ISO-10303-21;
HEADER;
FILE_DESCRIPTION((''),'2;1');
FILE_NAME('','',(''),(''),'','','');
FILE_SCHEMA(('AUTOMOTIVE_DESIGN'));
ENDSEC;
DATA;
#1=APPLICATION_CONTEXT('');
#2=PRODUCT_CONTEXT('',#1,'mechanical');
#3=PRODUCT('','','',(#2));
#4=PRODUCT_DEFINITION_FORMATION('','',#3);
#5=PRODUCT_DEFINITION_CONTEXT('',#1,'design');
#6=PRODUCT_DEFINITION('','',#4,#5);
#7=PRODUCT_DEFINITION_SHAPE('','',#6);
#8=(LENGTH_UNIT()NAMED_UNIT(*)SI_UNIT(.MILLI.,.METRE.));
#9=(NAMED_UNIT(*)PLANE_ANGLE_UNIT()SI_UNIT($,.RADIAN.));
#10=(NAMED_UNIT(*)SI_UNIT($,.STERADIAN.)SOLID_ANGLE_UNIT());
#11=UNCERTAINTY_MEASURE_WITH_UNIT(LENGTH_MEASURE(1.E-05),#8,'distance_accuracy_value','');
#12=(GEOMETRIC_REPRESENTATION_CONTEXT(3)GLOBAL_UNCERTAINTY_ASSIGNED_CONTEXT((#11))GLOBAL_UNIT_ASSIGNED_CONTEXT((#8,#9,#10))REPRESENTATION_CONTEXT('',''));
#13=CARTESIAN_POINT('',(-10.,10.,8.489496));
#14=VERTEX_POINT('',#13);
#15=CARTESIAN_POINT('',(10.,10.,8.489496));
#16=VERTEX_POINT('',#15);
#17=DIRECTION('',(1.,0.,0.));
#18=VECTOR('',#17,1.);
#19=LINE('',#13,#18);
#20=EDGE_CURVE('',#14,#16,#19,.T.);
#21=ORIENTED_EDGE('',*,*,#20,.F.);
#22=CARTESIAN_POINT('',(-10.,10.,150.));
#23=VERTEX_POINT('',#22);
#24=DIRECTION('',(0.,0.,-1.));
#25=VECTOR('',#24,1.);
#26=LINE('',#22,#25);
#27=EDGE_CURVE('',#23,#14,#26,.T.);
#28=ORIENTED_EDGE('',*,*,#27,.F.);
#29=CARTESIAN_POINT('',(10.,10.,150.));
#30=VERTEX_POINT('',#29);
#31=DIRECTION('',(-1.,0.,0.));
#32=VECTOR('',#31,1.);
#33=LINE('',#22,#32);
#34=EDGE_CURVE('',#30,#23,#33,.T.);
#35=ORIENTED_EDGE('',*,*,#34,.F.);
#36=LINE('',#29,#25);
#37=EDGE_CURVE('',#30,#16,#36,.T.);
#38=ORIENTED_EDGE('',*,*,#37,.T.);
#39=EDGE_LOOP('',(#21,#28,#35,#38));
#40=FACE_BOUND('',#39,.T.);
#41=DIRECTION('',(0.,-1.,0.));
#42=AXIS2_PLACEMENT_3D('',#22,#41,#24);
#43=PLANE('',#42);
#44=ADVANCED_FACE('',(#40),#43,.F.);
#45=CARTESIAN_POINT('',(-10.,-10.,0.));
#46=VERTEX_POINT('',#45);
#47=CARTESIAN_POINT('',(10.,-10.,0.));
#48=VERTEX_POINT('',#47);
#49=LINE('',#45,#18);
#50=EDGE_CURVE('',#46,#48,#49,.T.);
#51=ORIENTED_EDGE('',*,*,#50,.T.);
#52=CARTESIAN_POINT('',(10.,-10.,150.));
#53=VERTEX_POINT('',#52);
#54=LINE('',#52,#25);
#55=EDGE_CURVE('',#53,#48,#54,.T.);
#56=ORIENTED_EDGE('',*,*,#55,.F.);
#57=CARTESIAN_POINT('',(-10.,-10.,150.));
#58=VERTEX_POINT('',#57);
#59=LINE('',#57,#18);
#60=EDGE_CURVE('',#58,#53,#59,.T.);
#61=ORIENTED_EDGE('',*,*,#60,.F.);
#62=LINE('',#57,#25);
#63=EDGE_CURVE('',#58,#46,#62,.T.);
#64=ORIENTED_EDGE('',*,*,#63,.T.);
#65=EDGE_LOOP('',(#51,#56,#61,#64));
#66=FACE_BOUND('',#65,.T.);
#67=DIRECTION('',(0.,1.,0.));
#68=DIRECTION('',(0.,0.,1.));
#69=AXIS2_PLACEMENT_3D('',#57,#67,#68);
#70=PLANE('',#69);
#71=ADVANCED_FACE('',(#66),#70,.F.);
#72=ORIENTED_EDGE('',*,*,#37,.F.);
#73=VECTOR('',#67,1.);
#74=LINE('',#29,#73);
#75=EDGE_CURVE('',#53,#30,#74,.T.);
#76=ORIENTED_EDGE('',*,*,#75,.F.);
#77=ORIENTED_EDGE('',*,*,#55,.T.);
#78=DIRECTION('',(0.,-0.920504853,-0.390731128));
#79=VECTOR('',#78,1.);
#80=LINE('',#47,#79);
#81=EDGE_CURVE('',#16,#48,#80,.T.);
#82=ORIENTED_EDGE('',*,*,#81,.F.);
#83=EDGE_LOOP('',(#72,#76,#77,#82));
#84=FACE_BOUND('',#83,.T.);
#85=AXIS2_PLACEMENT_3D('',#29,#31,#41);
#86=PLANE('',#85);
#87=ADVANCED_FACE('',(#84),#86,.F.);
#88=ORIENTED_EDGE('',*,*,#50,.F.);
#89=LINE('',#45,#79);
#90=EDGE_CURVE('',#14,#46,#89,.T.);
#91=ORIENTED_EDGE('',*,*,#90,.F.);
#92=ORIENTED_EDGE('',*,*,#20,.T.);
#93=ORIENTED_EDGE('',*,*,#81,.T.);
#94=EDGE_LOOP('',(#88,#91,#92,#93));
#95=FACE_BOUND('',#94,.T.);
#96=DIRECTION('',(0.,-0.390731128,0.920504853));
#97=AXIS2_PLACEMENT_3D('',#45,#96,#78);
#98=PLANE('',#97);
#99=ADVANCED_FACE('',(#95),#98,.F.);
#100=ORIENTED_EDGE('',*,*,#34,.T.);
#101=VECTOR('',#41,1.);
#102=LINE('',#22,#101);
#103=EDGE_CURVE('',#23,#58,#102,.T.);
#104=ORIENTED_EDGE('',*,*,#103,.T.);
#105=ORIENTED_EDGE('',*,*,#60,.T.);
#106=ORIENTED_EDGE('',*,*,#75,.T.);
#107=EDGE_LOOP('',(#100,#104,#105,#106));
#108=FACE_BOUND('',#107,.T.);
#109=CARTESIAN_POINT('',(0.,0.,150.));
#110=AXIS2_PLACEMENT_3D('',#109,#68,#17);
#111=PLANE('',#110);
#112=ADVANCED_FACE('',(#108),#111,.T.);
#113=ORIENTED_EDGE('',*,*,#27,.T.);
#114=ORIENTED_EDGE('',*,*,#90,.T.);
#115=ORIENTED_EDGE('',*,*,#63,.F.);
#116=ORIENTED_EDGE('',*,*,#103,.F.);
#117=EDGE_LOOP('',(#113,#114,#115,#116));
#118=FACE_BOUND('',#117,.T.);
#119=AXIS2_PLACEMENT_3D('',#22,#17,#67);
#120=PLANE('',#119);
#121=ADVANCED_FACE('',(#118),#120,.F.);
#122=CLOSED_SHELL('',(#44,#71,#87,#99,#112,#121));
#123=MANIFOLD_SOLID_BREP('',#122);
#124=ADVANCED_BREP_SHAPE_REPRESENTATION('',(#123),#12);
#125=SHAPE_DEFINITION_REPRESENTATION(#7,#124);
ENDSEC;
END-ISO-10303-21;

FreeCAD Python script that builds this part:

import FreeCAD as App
import Part
import Sketcher

V = App.Vector
Q = App.Units.Quantity

doc = App.newDocument("Part")
body = doc.addObject("PartDesign::Body", "Body")

sketch1 = doc.addObject("Sketcher::SketchObject", "Sketch")
body.addObject(sketch1)
sketch1.AttachmentSupport = (doc.XY_Plane, [""])
sketch1.MapMode = "FlatFace"
sketch1.addGeometry([
    Part.LineSegment(V(-10, 10, 0), V(-10, -10, 0)),
    Part.LineSegment(V(-10, -10, 0), V(10, -10, 0)),
    Part.LineSegment(V(10, -10, 0), V(10, 10, 0)),
    Part.LineSegment(V(10, 10, 0), V(-10, 10, 0)),
], False)
sketch1.addConstraint([
    Sketcher.Constraint("Coincident", 0, 2, 1, 1),
    Sketcher.Constraint("Coincident", 1, 2, 2, 1),
    Sketcher.Constraint("Coincident", 2, 2, 3, 1),
    Sketcher.Constraint("Coincident", 3, 2, 0, 1),
    Sketcher.Constraint("Vertical", 0),
    Sketcher.Constraint("Horizontal", 1),
    Sketcher.Constraint("Vertical", 2),
    Sketcher.Constraint("Horizontal", 3),
    Sketcher.Constraint("Symmetric", 0, 2, 2, 2, -1, 1),
    Sketcher.Constraint("Equal", 3, 0),
    Sketcher.Constraint("DistanceX", 1, 1, 1, 2, 20.0),
])
pad1 = doc.addObject("PartDesign::Pad", "Pad")
body.addObject(pad1)
pad1.Profile = sketch1
pad1.Length = 150

sketch2 = doc.addObject("Sketcher::SketchObject", "Sketch001")
body.addObject(sketch2)
sketch2.AttachmentSupport = (doc.YZ_Plane, [""])
sketch2.MapMode = "FlatFace"
sketch2.AttachmentOffset = App.Placement(V(0, 0, 10), App.Rotation())
sketch2.addGeometry([
    Part.LineSegment(V(10, 8, 0), V(-10, 0, 0)),
    Part.LineSegment(V(-10, 0, 0), V(10, 0, 0)),
    Part.LineSegment(V(10, 0, 0), V(10, 8, 0)),
], False)
sketch2.addConstraint([
    Sketcher.Constraint("Coincident", 0, 2, 1, 1),
    Sketcher.Constraint("Coincident", 1, 2, 2, 1),
    Sketcher.Constraint("Coincident", 2, 2, 0, 1),
    Sketcher.Constraint("Horizontal", 1),
    Sketcher.Constraint("Vertical", 2),
    Sketcher.Constraint("Symmetric", 0, 2, 1, 2, -1, 1),
    Sketcher.Constraint("DistanceX", 1, 1, 1, 2, 20.0),
    Sketcher.Constraint("Angle", 0, Q("-157 deg")),
])
pocket1 = doc.addObject("PartDesign::Pocket", "Pocket")
body.addObject(pocket1)
pocket1.Profile = sketch2
pocket1.Type = "ThroughAll"

doc.recompute()
